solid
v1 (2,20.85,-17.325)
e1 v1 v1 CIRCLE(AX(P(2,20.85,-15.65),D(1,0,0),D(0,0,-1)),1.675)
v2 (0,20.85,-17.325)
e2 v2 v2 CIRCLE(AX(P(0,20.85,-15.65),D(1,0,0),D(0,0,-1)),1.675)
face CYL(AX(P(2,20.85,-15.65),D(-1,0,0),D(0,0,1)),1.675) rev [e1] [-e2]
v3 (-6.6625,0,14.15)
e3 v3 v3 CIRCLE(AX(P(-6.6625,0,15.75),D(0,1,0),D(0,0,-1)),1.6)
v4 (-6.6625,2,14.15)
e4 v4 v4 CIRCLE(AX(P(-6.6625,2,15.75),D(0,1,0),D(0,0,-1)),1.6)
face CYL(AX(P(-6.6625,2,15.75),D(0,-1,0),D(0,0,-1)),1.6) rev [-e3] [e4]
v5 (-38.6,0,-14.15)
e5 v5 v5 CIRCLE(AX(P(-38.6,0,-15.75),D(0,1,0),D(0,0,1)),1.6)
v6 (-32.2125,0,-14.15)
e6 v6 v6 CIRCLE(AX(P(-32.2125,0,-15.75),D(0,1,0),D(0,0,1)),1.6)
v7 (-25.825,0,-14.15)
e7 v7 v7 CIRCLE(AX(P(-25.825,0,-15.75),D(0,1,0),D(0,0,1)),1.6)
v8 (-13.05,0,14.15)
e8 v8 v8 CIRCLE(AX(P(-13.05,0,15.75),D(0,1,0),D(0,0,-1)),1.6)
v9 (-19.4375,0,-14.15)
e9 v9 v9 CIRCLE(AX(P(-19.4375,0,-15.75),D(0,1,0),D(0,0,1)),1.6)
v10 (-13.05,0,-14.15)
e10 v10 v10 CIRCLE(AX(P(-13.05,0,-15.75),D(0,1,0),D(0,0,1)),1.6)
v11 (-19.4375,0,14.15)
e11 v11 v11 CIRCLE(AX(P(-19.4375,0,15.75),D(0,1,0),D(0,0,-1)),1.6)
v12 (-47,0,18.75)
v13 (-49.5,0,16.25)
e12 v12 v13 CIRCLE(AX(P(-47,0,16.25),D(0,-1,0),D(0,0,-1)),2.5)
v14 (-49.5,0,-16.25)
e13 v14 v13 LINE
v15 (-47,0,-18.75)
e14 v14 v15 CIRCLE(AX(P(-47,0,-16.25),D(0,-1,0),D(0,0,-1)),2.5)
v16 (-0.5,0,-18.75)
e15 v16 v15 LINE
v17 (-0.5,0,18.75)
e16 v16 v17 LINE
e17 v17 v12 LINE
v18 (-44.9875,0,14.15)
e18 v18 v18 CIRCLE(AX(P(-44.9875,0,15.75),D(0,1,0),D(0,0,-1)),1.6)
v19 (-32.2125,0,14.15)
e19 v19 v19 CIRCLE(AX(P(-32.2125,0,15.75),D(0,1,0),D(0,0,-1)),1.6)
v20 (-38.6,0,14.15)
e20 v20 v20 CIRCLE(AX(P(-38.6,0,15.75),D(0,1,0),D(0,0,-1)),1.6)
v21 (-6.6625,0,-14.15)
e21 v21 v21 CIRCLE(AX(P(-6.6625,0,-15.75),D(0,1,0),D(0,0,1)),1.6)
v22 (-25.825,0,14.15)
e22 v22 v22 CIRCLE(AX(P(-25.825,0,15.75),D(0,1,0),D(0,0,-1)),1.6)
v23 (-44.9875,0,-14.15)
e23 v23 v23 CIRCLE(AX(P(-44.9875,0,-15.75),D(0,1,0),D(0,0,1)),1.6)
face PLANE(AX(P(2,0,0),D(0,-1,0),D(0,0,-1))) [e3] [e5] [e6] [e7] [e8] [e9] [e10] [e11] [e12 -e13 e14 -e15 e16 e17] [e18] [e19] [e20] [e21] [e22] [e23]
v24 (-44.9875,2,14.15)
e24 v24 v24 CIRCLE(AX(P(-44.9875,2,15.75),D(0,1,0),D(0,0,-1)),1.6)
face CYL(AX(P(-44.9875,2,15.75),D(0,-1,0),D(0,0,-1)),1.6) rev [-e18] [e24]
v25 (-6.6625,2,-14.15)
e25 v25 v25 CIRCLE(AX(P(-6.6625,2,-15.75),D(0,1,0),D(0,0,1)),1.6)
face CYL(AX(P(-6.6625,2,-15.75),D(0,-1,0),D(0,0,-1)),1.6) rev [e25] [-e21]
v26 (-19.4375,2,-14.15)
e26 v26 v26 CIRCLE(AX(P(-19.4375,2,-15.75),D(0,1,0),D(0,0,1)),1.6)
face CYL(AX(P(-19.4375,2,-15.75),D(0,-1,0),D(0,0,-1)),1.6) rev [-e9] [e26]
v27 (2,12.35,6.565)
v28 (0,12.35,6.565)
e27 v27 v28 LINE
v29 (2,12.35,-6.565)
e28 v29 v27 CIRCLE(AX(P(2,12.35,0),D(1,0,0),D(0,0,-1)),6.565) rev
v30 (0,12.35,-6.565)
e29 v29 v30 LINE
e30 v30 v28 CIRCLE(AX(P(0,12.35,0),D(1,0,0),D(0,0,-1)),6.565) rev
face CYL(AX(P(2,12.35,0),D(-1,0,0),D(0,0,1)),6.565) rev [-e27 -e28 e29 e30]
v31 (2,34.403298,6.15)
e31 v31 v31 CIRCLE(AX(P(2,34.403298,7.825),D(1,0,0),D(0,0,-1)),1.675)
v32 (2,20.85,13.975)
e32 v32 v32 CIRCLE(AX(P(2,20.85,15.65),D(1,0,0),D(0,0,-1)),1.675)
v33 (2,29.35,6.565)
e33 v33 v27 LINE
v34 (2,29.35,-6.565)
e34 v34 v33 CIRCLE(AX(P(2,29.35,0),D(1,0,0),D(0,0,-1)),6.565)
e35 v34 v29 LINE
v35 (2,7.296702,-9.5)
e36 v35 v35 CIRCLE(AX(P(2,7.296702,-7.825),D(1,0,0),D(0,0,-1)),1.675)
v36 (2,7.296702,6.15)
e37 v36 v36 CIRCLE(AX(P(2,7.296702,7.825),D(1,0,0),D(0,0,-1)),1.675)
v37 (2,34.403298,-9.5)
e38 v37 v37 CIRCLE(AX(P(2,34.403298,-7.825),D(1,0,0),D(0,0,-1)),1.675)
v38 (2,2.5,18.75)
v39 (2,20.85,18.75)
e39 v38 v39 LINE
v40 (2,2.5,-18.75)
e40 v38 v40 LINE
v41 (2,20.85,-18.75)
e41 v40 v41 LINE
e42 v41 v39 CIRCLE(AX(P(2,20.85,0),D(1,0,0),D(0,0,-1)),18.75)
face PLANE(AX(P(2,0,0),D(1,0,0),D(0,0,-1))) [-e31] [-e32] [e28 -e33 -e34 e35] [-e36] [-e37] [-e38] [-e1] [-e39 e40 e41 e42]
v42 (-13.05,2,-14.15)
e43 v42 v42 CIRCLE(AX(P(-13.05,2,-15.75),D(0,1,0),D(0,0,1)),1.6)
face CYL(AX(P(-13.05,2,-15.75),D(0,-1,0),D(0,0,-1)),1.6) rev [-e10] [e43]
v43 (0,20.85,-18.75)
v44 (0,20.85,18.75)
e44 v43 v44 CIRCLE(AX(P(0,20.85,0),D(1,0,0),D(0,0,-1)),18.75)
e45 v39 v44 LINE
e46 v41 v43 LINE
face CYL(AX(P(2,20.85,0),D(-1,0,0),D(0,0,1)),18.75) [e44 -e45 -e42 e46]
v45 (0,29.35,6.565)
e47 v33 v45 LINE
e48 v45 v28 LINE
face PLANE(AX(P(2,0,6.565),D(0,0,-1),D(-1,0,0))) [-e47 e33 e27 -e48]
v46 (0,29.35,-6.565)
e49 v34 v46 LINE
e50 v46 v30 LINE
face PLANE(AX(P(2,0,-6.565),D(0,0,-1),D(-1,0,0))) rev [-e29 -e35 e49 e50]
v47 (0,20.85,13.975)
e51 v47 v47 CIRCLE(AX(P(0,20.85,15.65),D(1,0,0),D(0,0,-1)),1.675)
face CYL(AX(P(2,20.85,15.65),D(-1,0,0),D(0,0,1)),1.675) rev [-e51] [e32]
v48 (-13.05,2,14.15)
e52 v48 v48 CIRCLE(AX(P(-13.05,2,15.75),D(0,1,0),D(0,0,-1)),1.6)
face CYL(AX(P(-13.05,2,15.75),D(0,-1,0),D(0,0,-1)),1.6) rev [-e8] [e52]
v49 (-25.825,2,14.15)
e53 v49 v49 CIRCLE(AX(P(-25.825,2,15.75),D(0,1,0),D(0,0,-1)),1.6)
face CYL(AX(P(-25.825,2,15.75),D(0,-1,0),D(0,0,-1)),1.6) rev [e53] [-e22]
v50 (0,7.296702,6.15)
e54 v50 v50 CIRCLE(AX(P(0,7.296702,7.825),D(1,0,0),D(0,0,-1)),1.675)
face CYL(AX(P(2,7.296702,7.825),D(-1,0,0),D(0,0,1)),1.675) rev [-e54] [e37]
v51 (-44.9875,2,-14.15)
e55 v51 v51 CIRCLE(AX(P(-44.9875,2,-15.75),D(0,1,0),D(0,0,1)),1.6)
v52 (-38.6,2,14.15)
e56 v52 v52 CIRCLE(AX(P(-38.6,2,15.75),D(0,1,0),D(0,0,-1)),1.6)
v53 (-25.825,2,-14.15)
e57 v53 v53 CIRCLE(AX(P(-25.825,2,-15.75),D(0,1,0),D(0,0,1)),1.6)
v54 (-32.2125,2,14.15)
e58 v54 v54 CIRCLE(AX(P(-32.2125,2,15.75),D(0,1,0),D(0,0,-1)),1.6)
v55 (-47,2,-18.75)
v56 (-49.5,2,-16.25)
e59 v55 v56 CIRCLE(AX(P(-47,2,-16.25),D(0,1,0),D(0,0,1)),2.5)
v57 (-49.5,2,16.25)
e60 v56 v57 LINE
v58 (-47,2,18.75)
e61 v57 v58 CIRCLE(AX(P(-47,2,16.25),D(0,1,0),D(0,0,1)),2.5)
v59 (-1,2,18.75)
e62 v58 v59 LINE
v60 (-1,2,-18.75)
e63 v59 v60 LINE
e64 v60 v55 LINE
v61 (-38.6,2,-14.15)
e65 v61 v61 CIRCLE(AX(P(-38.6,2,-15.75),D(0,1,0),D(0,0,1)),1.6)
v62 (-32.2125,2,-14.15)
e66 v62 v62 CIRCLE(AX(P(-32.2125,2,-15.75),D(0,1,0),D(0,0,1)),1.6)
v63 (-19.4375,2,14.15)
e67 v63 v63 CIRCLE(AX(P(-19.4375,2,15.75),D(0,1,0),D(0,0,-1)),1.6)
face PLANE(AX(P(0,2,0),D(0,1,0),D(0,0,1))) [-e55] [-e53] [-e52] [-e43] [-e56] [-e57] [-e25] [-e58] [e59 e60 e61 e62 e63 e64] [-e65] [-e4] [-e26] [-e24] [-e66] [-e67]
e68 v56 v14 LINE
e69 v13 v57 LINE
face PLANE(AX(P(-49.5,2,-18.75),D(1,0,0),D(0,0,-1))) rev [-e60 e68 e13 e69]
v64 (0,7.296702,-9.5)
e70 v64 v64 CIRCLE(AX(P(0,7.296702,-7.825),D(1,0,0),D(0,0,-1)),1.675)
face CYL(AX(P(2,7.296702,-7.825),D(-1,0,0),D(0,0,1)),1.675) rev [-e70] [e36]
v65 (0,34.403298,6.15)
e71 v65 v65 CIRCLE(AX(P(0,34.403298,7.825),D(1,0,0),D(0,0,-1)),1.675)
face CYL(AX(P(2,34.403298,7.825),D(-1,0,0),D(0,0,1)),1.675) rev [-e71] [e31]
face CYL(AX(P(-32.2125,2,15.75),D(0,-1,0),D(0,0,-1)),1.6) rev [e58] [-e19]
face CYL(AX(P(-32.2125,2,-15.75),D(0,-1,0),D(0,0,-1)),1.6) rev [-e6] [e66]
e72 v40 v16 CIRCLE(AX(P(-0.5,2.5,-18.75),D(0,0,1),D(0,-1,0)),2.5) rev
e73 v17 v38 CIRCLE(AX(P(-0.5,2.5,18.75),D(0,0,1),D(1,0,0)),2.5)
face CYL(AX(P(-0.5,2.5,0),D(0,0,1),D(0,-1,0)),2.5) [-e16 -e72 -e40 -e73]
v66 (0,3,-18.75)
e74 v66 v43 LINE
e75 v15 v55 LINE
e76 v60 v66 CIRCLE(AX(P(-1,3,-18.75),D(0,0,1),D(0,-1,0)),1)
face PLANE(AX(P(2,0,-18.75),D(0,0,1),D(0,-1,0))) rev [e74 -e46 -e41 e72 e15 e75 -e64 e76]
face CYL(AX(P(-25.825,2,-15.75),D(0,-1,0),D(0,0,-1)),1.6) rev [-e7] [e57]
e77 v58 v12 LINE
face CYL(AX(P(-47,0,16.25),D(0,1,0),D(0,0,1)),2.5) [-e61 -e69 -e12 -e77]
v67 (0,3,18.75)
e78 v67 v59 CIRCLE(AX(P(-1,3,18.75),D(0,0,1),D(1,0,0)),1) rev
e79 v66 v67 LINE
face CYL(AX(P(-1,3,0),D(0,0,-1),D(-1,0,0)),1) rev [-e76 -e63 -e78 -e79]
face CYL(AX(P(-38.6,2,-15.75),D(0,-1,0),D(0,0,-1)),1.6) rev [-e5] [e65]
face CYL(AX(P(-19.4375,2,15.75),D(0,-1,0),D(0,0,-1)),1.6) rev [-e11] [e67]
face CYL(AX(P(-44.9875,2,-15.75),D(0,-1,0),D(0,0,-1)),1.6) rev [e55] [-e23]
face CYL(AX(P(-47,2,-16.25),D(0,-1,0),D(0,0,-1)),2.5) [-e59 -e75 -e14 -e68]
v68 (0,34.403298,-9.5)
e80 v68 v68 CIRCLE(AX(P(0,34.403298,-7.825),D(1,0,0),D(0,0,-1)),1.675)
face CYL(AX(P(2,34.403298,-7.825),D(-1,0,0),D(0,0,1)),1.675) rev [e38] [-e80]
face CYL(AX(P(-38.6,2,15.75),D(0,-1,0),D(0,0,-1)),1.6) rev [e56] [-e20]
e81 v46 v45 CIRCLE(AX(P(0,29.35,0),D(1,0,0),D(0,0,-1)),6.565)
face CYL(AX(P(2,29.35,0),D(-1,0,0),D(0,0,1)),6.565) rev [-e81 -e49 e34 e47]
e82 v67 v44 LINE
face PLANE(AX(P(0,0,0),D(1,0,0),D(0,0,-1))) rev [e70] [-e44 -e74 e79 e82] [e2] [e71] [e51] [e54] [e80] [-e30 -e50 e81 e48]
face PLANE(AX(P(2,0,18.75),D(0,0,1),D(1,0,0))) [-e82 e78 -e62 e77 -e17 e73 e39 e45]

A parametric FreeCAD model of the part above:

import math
import FreeCAD as App
import Part
import Sketcher
from FreeCAD import Vector
Q = App.Units.Quantity


def edges_at(feature, points):
    """Names of the edges that pass closest to the given points."""
    edges = feature.Shape.Edges
    near = lambda p: min(range(len(edges)), key=lambda i: edges[i].distToShape(Part.Vertex(*p))[0])
    return sorted({f"Edge{near(p) + 1}" for p in points})


def add_polygon(sketch, points):
    """Adds a closed chain of lines whose ends are joined by coincident constraints."""
    first, n = sketch.GeometryCount, len(points)
    for a, b in zip(points, points[1:] + points[:1]):
        sketch.addGeometry(Part.LineSegment(App.Vector(*a, 0), App.Vector(*b, 0)), False)
    for i in range(n):
        sketch.addConstraint(Sketcher.Constraint("Coincident", first + i, 2, first + (i + 1) % n, 1))

doc = App.newDocument("Part")
params = doc.addObject("Spreadsheet::Sheet", "Params")
for row, (alias, value) in enumerate([
    ("sketch1_diameter", "3.35 mm"),
    ("sketch1_width", "17 mm"),
    ("sketch1_radius", "18.75 mm"),
    ("sketch1_width2", "20.85 mm"),
    ("pad1_length", "2 mm"),
    ("sketch2_diameter", "3.2 mm"),
    ("sketch2_width", "49.5 mm"),
    ("sketch2_height", "37.5 mm"),
    ("pad2_length", "2 mm"),
    ("fillet_radius", "2.5 mm"),
    ("fillet2_radius", "1 mm"),
], start=1):
    params.set(f"A{row}", alias)
    params.set(f"B{row}", "=" + value)
    params.setAlias(f"B{row}", alias)

body = doc.addObject("PartDesign::Body", "Body")

sketch1 = body.newObject("Sketcher::SketchObject", "Sketch")
sketch1.AttachmentSupport = (doc.getObject("YZ_Plane"), [""])
sketch1.MapMode = "FlatFace"
sketch1.addGeometry(Part.LineSegment(Vector(0, 18.8, 0), Vector(0, -18.8, 0)), False)
sketch1.addGeometry(Part.LineSegment(Vector(0, -18.8, 0), Vector(20.9, -18.8, 0)), False)
sketch1.addGeometry(Part.ArcOfCircle(Part.Circle(Vector(20.9, 0, 0), Vector(0, 0, 1), 18.8), math.radians(-90), math.radians(90)), False)
sketch1.addGeometry(Part.LineSegment(Vector(20.9, 18.8, 0), Vector(0, 18.8, 0)), False)
sketch1.addGeometry(Part.Circle(Vector(7.3, 7.8, 0), Vector(0, 0, 1), 1.7), False)
sketch1.addGeometry(Part.Circle(Vector(20.9, 15.7, 0), Vector(0, 0, 1), 1.7), False)
sketch1.addGeometry(Part.Circle(Vector(7.3, -7.8, 0), Vector(0, 0, 1), 1.7), False)
sketch1.addGeometry(Part.ArcOfCircle(Part.Circle(Vector(12.3, 0, 0), Vector(0, 0, 1), 6.6), math.radians(90), math.radians(270)), False)
sketch1.addGeometry(Part.LineSegment(Vector(12.3, 6.6, 0), Vector(29.4, 6.6, 0)), False)
sketch1.addGeometry(Part.ArcOfCircle(Part.Circle(Vector(29.4, 0, 0), Vector(0, 0, 1), 6.6), math.radians(-90), math.radians(90)), False)
sketch1.addGeometry(Part.LineSegment(Vector(29.4, -6.6, 0), Vector(12.3, -6.6, 0)), False)
sketch1.addGeometry(Part.Circle(Vector(20.9, -15.7, 0), Vector(0, 0, 1), 1.7), False)
sketch1.addGeometry(Part.Circle(Vector(34.4, 7.8, 0), Vector(0, 0, 1), 1.7), False)
sketch1.addGeometry(Part.Circle(Vector(34.4, -7.8, 0), Vector(0, 0, 1), 1.7), False)
sketch1.addConstraint(Sketcher.Constraint("Coincident", 0, 2, 1, 1))
sketch1.addConstraint(Sketcher.Constraint("Tangent", 1, 2, 2, 1))
sketch1.addConstraint(Sketcher.Constraint("Tangent", 2, 2, 3, 1))
sketch1.addConstraint(Sketcher.Constraint("Coincident", 3, 2, 0, 1))
sketch1.addConstraint(Sketcher.Constraint("Tangent", 7, 1, 8, 1))
sketch1.addConstraint(Sketcher.Constraint("Tangent", 8, 2, 9, 2))
sketch1.addConstraint(Sketcher.Constraint("Tangent", 9, 1, 10, 1))
sketch1.addConstraint(Sketcher.Constraint("Tangent", 10, 2, 7, 2))
sketch1.addConstraint(Sketcher.Constraint("Vertical", 0))
sketch1.addConstraint(Sketcher.Constraint("Horizontal", 1))
sketch1.addConstraint(Sketcher.Constraint("Horizontal", 3))
sketch1.addConstraint(Sketcher.Constraint("Horizontal", 8))
sketch1.addConstraint(Sketcher.Constraint("Horizontal", 10))
sketch1.addConstraint(Sketcher.Constraint("Equal", 4, 5))
sketch1.addConstraint(Sketcher.Constraint("Equal", 5, 6))
sketch1.addConstraint(Sketcher.Constraint("Equal", 6, 11))
sketch1.addConstraint(Sketcher.Constraint("Equal", 11, 12))
sketch1.addConstraint(Sketcher.Constraint("Equal", 12, 13))
sketch1.addConstraint(Sketcher.Constraint("Symmetric", 0, 2, 3, 2, -1, 1))
sketch1.addConstraint(Sketcher.Constraint("Symmetric", 4, 3, 6, 3, -1))
sketch1.addConstraint(Sketcher.Constraint("Symmetric", 5, 3, 11, 3, -1))
sketch1.addConstraint(Sketcher.Constraint("Symmetric", 12, 3, 13, 3, -1))
sketch1.addConstraint(Sketcher.Constraint("PointOnObject", 7, 3, -1))
sketch1.addConstraint(Sketcher.Constraint("Horizontal", 4, 3, 12, 3))
sketch1.addConstraint(Sketcher.Constraint("Vertical", 2, 3, 5, 3))
sketch1.addConstraint(Sketcher.Constraint("Diameter", 4, Q("3.35 mm")))
sketch1.addConstraint(Sketcher.Constraint("DistanceX", 8, 1, 8, 2, Q("17 mm")))
sketch1.addConstraint(Sketcher.Constraint("Radius", 2, Q("18.75 mm")))
sketch1.addConstraint(Sketcher.Constraint("Radius", 7, Q("6.565 mm")))
sketch1.addConstraint(Sketcher.Constraint("DistanceX", 1, 1, 1, 2, Q("20.85 mm")))
sketch1.addConstraint(Sketcher.Constraint("DistanceX", 7, 3, 2, 3, Q("8.5 mm")))
sketch1.addConstraint(Sketcher.Constraint("DistanceY", 0, 2, 11, 3, Q("3.1 mm")))
sketch1.addConstraint(Sketcher.Constraint("DistanceY", 6, 3, 4, 3, Q("15.65 mm")))
sketch1.addConstraint(Sketcher.Constraint("DistanceX", -1, 1, 4, 3, Q("7.296702 mm")))
sketch1.addConstraint(Sketcher.Constraint("DistanceX", -1, 1, 12, 3, Q("34.403298 mm")))
sketch1.setExpression("Constraints[25]", "Params.sketch1_diameter")
sketch1.setExpression("Constraints[26]", "Params.sketch1_width")
sketch1.setExpression("Constraints[27]", "Params.sketch1_radius")
sketch1.setExpression("Constraints[29]", "Params.sketch1_width2")
pad1 = body.newObject("PartDesign::Pad", "Pad")
pad1.Profile = sketch1
pad1.setExpression("Length", "Params.pad1_length")

sketch2 = body.newObject("Sketcher::SketchObject", "Sketch001")
sketch2.AttachmentSupport = (doc.getObject("XZ_Plane"), [""])
sketch2.MapMode = "FlatFace"
add_polygon(sketch2, [(-49.5, -18.8), (-49.5, 18.8), (0, 18.8), (0, -18.8)])
sketch2.addGeometry(Part.Circle(Vector(-45, 15.8, 0), Vector(0, 0, 1), 1.6), False)
sketch2.addGeometry(Part.Circle(Vector(-38.6, 15.8, 0), Vector(0, 0, 1), 1.6), False)
sketch2.addGeometry(Part.Circle(Vector(-32.2, 15.8, 0), Vector(0, 0, 1), 1.6), False)
sketch2.addGeometry(Part.Circle(Vector(-25.8, 15.8, 0), Vector(0, 0, 1), 1.6), False)
sketch2.addGeometry(Part.Circle(Vector(-19.4, 15.8, 0), Vector(0, 0, 1), 1.6), False)
sketch2.addGeometry(Part.Circle(Vector(-13.1, 15.8, 0), Vector(0, 0, 1), 1.6), False)
sketch2.addGeometry(Part.Circle(Vector(-6.7, 15.8, 0), Vector(0, 0, 1), 1.6), False)
sketch2.addGeometry(Part.Circle(Vector(-45, -15.8, 0), Vector(0, 0, 1), 1.6), False)
sketch2.addGeometry(Part.Circle(Vector(-38.6, -15.8, 0), Vector(0, 0, 1), 1.6), False)
sketch2.addGeometry(Part.Circle(Vector(-32.2, -15.8, 0), Vector(0, 0, 1), 1.6), False)
sketch2.addGeometry(Part.Circle(Vector(-25.8, -15.8, 0), Vector(0, 0, 1), 1.6), False)
sketch2.addGeometry(Part.Circle(Vector(-19.4, -15.8, 0), Vector(0, 0, 1), 1.6), False)
sketch2.addGeometry(Part.Circle(Vector(-13.1, -15.8, 0), Vector(0, 0, 1), 1.6), False)
sketch2.addGeometry(Part.Circle(Vector(-6.7, -15.8, 0), Vector(0, 0, 1), 1.6), False)
sketch2.addConstraint(Sketcher.Constraint("Vertical", 0))
sketch2.addConstraint(Sketcher.Constraint("Horizontal", 1))
sketch2.addConstraint(Sketcher.Constraint("Vertical", 2))
sketch2.addConstraint(Sketcher.Constraint("Horizontal", 3))
sketch2.addConstraint(Sketcher.Constraint("Equal", 4, 5))
sketch2.addConstraint(Sketcher.Constraint("Equal", 5, 6))
sketch2.addConstraint(Sketcher.Constraint("Equal", 6, 7))
sketch2.addConstraint(Sketcher.Constraint("Equal", 7, 8))
sketch2.addConstraint(Sketcher.Constraint("Equal", 8, 9))
sketch2.addConstraint(Sketcher.Constraint("Equal", 9, 10))
sketch2.addConstraint(Sketcher.Constraint("Equal", 10, 11))
sketch2.addConstraint(Sketcher.Constraint("Equal", 11, 12))
sketch2.addConstraint(Sketcher.Constraint("Equal", 12, 13))
sketch2.addConstraint(Sketcher.Constraint("Equal", 13, 14))
sketch2.addConstraint(Sketcher.Constraint("Equal", 14, 15))
sketch2.addConstraint(Sketcher.Constraint("Equal", 15, 16))
sketch2.addConstraint(Sketcher.Constraint("Equal", 16, 17))
sketch2.addConstraint(Sketcher.Constraint("Symmetric", 1, 2, 2, 2, -1, 1))
sketch2.addConstraint(Sketcher.Constraint("Symmetric", 4, 3, 11, 3, -1))
sketch2.addConstraint(Sketcher.Constraint("Symmetric", 5, 3, 12, 3, -1))
sketch2.addConstraint(Sketcher.Constraint("Symmetric", 6, 3, 13, 3, -1))
sketch2.addConstraint(Sketcher.Constraint("Symmetric", 7, 3, 14, 3, -1))
sketch2.addConstraint(Sketcher.Constraint("Symmetric", 8, 3, 15, 3, -1))
sketch2.addConstraint(Sketcher.Constraint("Symmetric", 9, 3, 16, 3, -1))
sketch2.addConstraint(Sketcher.Constraint("Symmetric", 10, 3, 17, 3, -1))
sketch2.addConstraint(Sketcher.Constraint("Horizontal", 4, 3, 5, 3))
sketch2.addConstraint(Sketcher.Constraint("Horizontal", 5, 3, 6, 3))
sketch2.addConstraint(Sketcher.Constraint("Horizontal", 6, 3, 7, 3))
sketch2.addConstraint(Sketcher.Constraint("Horizontal", 7, 3, 8, 3))
sketch2.addConstraint(Sketcher.Constraint("Horizontal", 8, 3, 9, 3))
sketch2.addConstraint(Sketcher.Constraint("Horizontal", 9, 3, 10, 3))
sketch2.addConstraint(Sketcher.Constraint("Diameter", 4, Q("3.2 mm")))
sketch2.addConstraint(Sketcher.Constraint("DistanceX", 1, 1, 1, 2, Q("49.5 mm")))
sketch2.addConstraint(Sketcher.Constraint("DistanceY", 0, 1, 0, 2, Q("37.5 mm")))
sketch2.addConstraint(Sketcher.Constraint("DistanceY", 4, 3, 0, 2, Q("3 mm")))
sketch2.addConstraint(Sketcher.Constraint("DistanceX", 5, 3, -1, 1, Q("38.6 mm")))
sketch2.addConstraint(Sketcher.Constraint("DistanceX", 9, 3, -1, 1, Q("13.05 mm")))
sketch2.addConstraint(Sketcher.Constraint("DistanceX", 4, 3, 8, 3, Q("25.55 mm")))
sketch2.addConstraint(Sketcher.Constraint("DistanceX", 6, 3, 10, 3, Q("25.55 mm")))
sketch2.addConstraint(Sketcher.Constraint("DistanceX", 7, 3, -1, 1, Q("25.825 mm")))
sketch2.addConstraint(Sketcher.Constraint("DistanceX", 4, 3, 6, 3, Q("12.775 mm")))
sketch2.addConstraint(Sketcher.Constraint("DistanceX", 4, 3, -1, 1, Q("44.9875 mm")))
sketch2.setExpression("Constraints[35]", "Params.sketch2_diameter")
sketch2.setExpression("Constraints[36]", "Params.sketch2_width")
sketch2.setExpression("Constraints[37]", "Params.sketch2_height")
pad2 = body.newObject("PartDesign::Pad", "Pad001")
pad2.Profile = sketch2
pad2.setExpression("Length", "Params.pad2_length")
pad2.Reversed = True
doc.recompute()

fillet = body.newObject("PartDesign::Fillet", "Fillet")
fillet.Base = (pad2, edges_at(pad2, [(-49.5, 1, 18.75), (-49.5, 1, -18.75), (2, 0, 0)]))
fillet.setExpression("Radius", "Params.fillet_radius")
doc.recompute()

fillet2 = body.newObject("PartDesign::Fillet", "Fillet001")
fillet2.Base = (fillet, edges_at(fillet, [(0, 2, 0)]))
fillet2.setExpression("Radius", "Params.fillet2_radius")

doc.recompute()
